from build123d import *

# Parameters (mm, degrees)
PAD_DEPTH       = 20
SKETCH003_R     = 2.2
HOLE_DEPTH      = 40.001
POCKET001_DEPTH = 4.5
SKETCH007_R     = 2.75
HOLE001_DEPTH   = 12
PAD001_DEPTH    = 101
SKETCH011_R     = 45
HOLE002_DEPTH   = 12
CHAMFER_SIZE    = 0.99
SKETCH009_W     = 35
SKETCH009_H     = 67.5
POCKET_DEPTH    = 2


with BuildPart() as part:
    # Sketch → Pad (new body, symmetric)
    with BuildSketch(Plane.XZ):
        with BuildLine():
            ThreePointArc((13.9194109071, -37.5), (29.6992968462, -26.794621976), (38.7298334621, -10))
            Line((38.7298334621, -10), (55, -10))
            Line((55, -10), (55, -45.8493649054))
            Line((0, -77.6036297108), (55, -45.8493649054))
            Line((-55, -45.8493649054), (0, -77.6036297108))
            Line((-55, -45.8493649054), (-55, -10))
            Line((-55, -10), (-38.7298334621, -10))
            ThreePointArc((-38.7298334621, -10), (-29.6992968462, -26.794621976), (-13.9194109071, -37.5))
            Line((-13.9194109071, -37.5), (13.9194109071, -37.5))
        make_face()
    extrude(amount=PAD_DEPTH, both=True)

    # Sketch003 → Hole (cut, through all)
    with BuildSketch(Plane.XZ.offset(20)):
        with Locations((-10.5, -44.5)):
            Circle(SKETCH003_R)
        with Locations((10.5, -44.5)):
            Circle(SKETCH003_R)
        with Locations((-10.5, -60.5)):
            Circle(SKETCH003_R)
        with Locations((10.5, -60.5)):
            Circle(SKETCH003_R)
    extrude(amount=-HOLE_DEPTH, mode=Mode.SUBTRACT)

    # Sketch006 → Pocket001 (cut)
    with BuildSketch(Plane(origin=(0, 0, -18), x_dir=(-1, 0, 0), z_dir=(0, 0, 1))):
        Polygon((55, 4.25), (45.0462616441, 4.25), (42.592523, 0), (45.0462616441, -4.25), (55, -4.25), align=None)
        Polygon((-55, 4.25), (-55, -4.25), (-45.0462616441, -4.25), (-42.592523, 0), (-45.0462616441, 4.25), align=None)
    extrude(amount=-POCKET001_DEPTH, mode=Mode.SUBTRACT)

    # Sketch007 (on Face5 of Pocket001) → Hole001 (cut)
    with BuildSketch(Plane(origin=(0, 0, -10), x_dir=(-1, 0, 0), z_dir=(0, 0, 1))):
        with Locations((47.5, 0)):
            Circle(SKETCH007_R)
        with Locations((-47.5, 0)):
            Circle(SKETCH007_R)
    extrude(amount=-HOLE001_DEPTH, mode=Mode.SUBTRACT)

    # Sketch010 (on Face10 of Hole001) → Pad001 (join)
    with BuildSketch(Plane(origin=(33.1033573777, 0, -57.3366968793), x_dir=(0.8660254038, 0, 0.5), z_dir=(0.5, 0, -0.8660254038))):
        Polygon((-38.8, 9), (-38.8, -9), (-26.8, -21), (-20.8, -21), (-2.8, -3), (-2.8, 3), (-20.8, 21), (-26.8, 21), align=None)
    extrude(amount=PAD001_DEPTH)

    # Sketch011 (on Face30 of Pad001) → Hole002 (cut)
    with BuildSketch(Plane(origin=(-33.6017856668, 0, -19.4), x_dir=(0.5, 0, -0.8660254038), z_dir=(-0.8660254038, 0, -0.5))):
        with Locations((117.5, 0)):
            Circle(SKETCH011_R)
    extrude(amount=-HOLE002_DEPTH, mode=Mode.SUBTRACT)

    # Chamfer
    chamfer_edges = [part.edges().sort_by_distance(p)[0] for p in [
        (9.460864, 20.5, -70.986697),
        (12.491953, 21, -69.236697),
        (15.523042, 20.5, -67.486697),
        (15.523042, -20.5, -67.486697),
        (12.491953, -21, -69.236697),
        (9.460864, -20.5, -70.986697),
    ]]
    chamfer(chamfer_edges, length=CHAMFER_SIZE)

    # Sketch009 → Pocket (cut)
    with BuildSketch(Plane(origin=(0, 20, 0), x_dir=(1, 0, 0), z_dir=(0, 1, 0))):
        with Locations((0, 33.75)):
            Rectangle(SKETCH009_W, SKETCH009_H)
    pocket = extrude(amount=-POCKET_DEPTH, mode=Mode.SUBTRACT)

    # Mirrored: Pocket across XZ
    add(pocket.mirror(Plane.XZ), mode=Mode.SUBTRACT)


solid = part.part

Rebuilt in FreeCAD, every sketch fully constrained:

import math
import FreeCAD as App
import Part
import Sketcher

V = App.Vector
Q = App.Units.Quantity


def edges_at(feature, points):
    """Names of the edges that pass closest to the given points."""
    edges = feature.Shape.Edges
    near = lambda p: min(range(len(edges)), key=lambda i: edges[i].distToShape(Part.Vertex(*p))[0])
    return sorted({f"Edge{near(p) + 1}" for p in points})

doc = App.newDocument("Part")
body = doc.addObject("PartDesign::Body", "Body")

# Sketch on XZ plane
sketch1 = body.newObject("Sketcher::SketchObject", "Sketch")
sketch1.AttachmentSupport = (doc.getObject("XZ_Plane"), [""])
sketch1.MapMode = "FlatFace"
sketch1.addGeometry([
    Part.ArcOfCircle(Part.Circle(V(0, 0, 0), V(0, 0, 1), 40), math.radians(-70), math.radians(-14)),  # 0
    Part.LineSegment(V(14, -38, 0), V(-14, -38, 0)),  # 1
    Part.ArcOfCircle(Part.Circle(V(0, 0, 0), V(0, 0, 1), 40), math.radians(-166), math.radians(-110)),  # 2
    Part.LineSegment(V(-39, -10, 0), V(-55, -10, 0)),  # 3
    Part.LineSegment(V(-55, -10, 0), V(-55, -46, 0)),  # 4
    Part.LineSegment(V(-55, -46, 0), V(0, -78, 0)),  # 5
    Part.LineSegment(V(0, -78, 0), V(55, -46, 0)),  # 6
    Part.LineSegment(V(55, -46, 0), V(55, -10, 0)),  # 7
    Part.LineSegment(V(55, -10, 0), V(39, -10, 0)),  # 8
], False)
sketch1.addConstraint([
    Sketcher.Constraint("Coincident", 0, 1, 1, 1),
    Sketcher.Constraint("Coincident", 1, 2, 2, 2),
    Sketcher.Constraint("Coincident", 2, 1, 3, 1),
    Sketcher.Constraint("Coincident", 3, 2, 4, 1),
    Sketcher.Constraint("Coincident", 4, 2, 5, 1),
    Sketcher.Constraint("Coincident", 5, 2, 6, 1),
    Sketcher.Constraint("Coincident", 6, 2, 7, 1),
    Sketcher.Constraint("Coincident", 7, 2, 8, 1),
    Sketcher.Constraint("Coincident", 8, 2, 0, 2),
    Sketcher.Constraint("Horizontal", 1),
    Sketcher.Constraint("Horizontal", 3),
    Sketcher.Constraint("Vertical", 4),
    Sketcher.Constraint("Vertical", 7),
    Sketcher.Constraint("Horizontal", 8),
    Sketcher.Constraint("Coincident", 0, 3, -1, 1),
    Sketcher.Constraint("Coincident", 2, 3, -1, 1),
    Sketcher.Constraint("Equal", 0, 2),
    Sketcher.Constraint("Symmetric", 4, 2, 6, 2, -2),
    Sketcher.Constraint("PointOnObject", 5, 2, -2),
    Sketcher.Constraint("Horizontal", 3, 2, 7, 2),
    Sketcher.Constraint("Radius", 0, 40.0),
    Sketcher.Constraint("Angle", 5, Q("-30 deg")),
    Sketcher.Constraint("DistanceY", 2, 1, -1, 1, 10.0),
    Sketcher.Constraint("DistanceX", 3, 2, -1, 1, 55.0),
    Sketcher.Constraint("DistanceY", 0, 1, -1, 1, 37.5),
    Sketcher.Constraint("DistanceY", 4, 2, 4, 1, 35.849365),
])
pad1 = body.newObject("PartDesign::Pad", "Pad")
pad1.Profile = sketch1
pad1.Length = 40
pad1.Midplane = True

# Sketch on XZ plane
sketch2 = body.newObject("Sketcher::SketchObject", "Sketch001")
sketch2.AttachmentSupport = (doc.getObject("XZ_Plane"), [""])
sketch2.MapMode = "FlatFace"
sketch2.AttachmentOffset = App.Placement(V(0, 0, 20), App.Rotation())
sketch2.addGeometry([
    Part.Circle(V(-10.5, -44.5, 0), V(0, 0, 1), 2.2),
    Part.Circle(V(10.5, -44.5, 0), V(0, 0, 1), 2.2),
    Part.Circle(V(-10.5, -60.5, 0), V(0, 0, 1), 2.2),
    Part.Circle(V(10.5, -60.5, 0), V(0, 0, 1), 2.2),
], False)
sketch2.addConstraint([
    Sketcher.Constraint("Equal", 0, 1),
    Sketcher.Constraint("Equal", 1, 2),
    Sketcher.Constraint("Equal", 2, 3),
    Sketcher.Constraint("Symmetric", 0, 3, 1, 3, -2),
    Sketcher.Constraint("Symmetric", 2, 3, 3, 3, -2),
    Sketcher.Constraint("Vertical", 0, 3, 2, 3),
    Sketcher.Constraint("Diameter", 0, 4.4),
    Sketcher.Constraint("DistanceX", 0, 3, 1, 3, 21.0),
    Sketcher.Constraint("DistanceY", 2, 3, 0, 3, 16.0),
    Sketcher.Constraint("DistanceY", 0, 3, -1, 1, 44.5),
])
pocket1 = body.newObject("PartDesign::Pocket", "Pocket")
pocket1.Profile = sketch2
pocket1.Type = "ThroughAll"

# Sketch on XY plane
sketch3 = body.newObject("Sketcher::SketchObject", "Sketch002")
sketch3.AttachmentSupport = (doc.getObject("XY_Plane"), [""])
sketch3.MapMode = "FlatFace"
sketch3.AttachmentOffset = App.Placement(V(0, 0, -18), App.Rotation())
sketch3.addGeometry([
    Part.LineSegment(V(-55, -4.2, 0), V(-45, -4.2, 0)),  # 0
    Part.LineSegment(V(-45, -4.2, 0), V(-42.6, 0, 0)),  # 1
    Part.LineSegment(V(-42.6, 0, 0), V(-45, 4.2, 0)),  # 2
    Part.LineSegment(V(-45, 4.2, 0), V(-55, 4.2, 0)),  # 3
    Part.LineSegment(V(-55, 4.2, 0), V(-55, -4.2, 0)),  # 4
    Part.LineSegment(V(55, -4.2, 0), V(55, 4.2, 0)),  # 5
    Part.LineSegment(V(55, 4.2, 0), V(45, 4.2, 0)),  # 6
    Part.LineSegment(V(45, 4.2, 0), V(42.6, 0, 0)),  # 7
    Part.LineSegment(V(42.6, 0, 0), V(45, -4.2, 0)),  # 8
    Part.LineSegment(V(45, -4.2, 0), V(55, -4.2, 0)),  # 9
], False)
sketch3.addConstraint([
    Sketcher.Constraint("Coincident", 0, 2, 1, 1),
    Sketcher.Constraint("Coincident", 1, 2, 2, 1),
    Sketcher.Constraint("Coincident", 2, 2, 3, 1),
    Sketcher.Constraint("Coincident", 3, 2, 4, 1),
    Sketcher.Constraint("Coincident", 4, 2, 0, 1),
    Sketcher.Constraint("Coincident", 5, 2, 6, 1),
    Sketcher.Constraint("Coincident", 6, 2, 7, 1),
    Sketcher.Constraint("Coincident", 7, 2, 8, 1),
    Sketcher.Constraint("Coincident", 8, 2, 9, 1),
    Sketcher.Constraint("Coincident", 9, 2, 5, 1),
    Sketcher.Constraint("Horizontal", 0),
    Sketcher.Constraint("Horizontal", 3),
    Sketcher.Constraint("Vertical", 4),
    Sketcher.Constraint("Vertical", 5),
    Sketcher.Constraint("Horizontal", 6),
    Sketcher.Constraint("Horizontal", 9),
    Sketcher.Constraint("Symmetric", 4, 2, 5, 2, -1, 1),
    Sketcher.Constraint("Symmetric", 1, 2, 7, 2, -1, 1),
    Sketcher.Constraint("Symmetric", 2, 2, 8, 2, -1, 1),
    Sketcher.Constraint("Symmetric", 2, 2, 6, 2, -2),
    Sketcher.Constraint("PointOnObject", 1, 2, -1),
    Sketcher.Constraint("Parallel", 1, 7),
    Sketcher.Constraint("Angle", 1, Q("60 deg")),
    Sketcher.Constraint("DistanceY", 4, 2, 4, 1, 8.5),
    Sketcher.Constraint("DistanceX", 3, 2, -1, 1, 55.0),
    Sketcher.Constraint("DistanceX", 0, 1, 0, 2, 9.953738),
])
pocket2 = body.newObject("PartDesign::Pocket", "Pocket001")
pocket2.Profile = sketch3
pocket2.Length = 4.5

# Sketch on XY plane
sketch4 = body.newObject("Sketcher::SketchObject", "Sketch003")
sketch4.AttachmentSupport = (doc.getObject("XY_Plane"), [""])
sketch4.MapMode = "FlatFace"
sketch4.AttachmentOffset = App.Placement(V(0, 0, -10), App.Rotation())
sketch4.addGeometry([
    Part.Circle(V(-47.5, 0, 0), V(0, 0, 1), 2.8),
    Part.Circle(V(47.5, 0, 0), V(0, 0, 1), 2.8),
], False)
sketch4.addConstraint([
    Sketcher.Constraint("Equal", 0, 1),
    Sketcher.Constraint("Symmetric", 0, 3, 1, 3, -1, 1),
    Sketcher.Constraint("PointOnObject", 0, 3, -1),
    Sketcher.Constraint("Diameter", 0, 5.5),
    Sketcher.Constraint("DistanceX", 0, 3, 1, 3, 95.0),
])
pocket3 = body.newObject("PartDesign::Pocket", "Pocket002")
pocket3.Profile = sketch4
pocket3.Length = 12

# Sketch on an angled plane
sketch5 = body.newObject("Sketcher::SketchObject", "Sketch004")
sketch5.Placement = App.Placement(V(33.103357, 0, -57.336697), App.Rotation(V(0.866025404, 0, 0.5), V(0, -1, 0), V(0.5, 0, -0.866025404), "ZXY"))
sketch5.addGeometry([
    Part.LineSegment(V(-39, 9, 0), V(-39, -9, 0)),  # 0
    Part.LineSegment(V(-39, -9, 0), V(-27, -21, 0)),  # 1
    Part.LineSegment(V(-27, -21, 0), V(-21, -21, 0)),  # 2
    Part.LineSegment(V(-21, -21, 0), V(-3, -3, 0)),  # 3
    Part.LineSegment(V(-3, -3, 0), V(-3, 3, 0)),  # 4
    Part.LineSegment(V(-3, 3, 0), V(-21, 21, 0)),  # 5
    Part.LineSegment(V(-21, 21, 0), V(-27, 21, 0)),  # 6
    Part.LineSegment(V(-27, 21, 0), V(-39, 9, 0)),  # 7
], False)
sketch5.addConstraint([
    Sketcher.Constraint("Coincident", 0, 2, 1, 1),
    Sketcher.Constraint("Coincident", 1, 2, 2, 1),
    Sketcher.Constraint("Coincident", 2, 2, 3, 1),
    Sketcher.Constraint("Coincident", 3, 2, 4, 1),
    Sketcher.Constraint("Coincident", 4, 2, 5, 1),
    Sketcher.Constraint("Coincident", 5, 2, 6, 1),
    Sketcher.Constraint("Coincident", 6, 2, 7, 1),
    Sketcher.Constraint("Coincident", 7, 2, 0, 1),
    Sketcher.Constraint("Vertical", 0),
    Sketcher.Constraint("Horizontal", 2),
    Sketcher.Constraint("Vertical", 4),
    Sketcher.Constraint("Horizontal", 6),
    Sketcher.Constraint("Symmetric", 2, 2, 5, 2, -1),
    Sketcher.Constraint("Perpendicular", 1, 3),
    Sketcher.Constraint("Perpendicular", 3, 5),
    Sketcher.Constraint("Perpendicular", 5, 7),
    Sketcher.Constraint("Vertical", 1, 2, 6, 2),
    Sketcher.Constraint("Equal", 6, 4),
    Sketcher.Constraint("Equal", 3, 5),
    Sketcher.Constraint("DistanceX", 2, 1, 2, 2, 6.0),
    Sketcher.Constraint("DistanceY", 0, 2, 0, 1, 18.0),
    Sketcher.Constraint("DistanceY", 1, 2, -1, 1, 21.0),
    Sketcher.Constraint("DistanceX", 0, 2, -1, 1, 38.8),
])
pad2 = body.newObject("PartDesign::Pad", "Pad001")
pad2.Profile = sketch5
pad2.Length = 101

# Sketch on an angled plane
sketch6 = body.newObject("Sketcher::SketchObject", "Sketch005")
sketch6.Placement = App.Placement(V(-33.601786, 0, -19.4), App.Rotation(V(0.5, 0, -0.866025404), V(0, -1, 0), V(-0.866025404, 0, -0.5), "ZXY"))
sketch6.addGeometry(Part.Circle(V(118, 0, 0), V(0, 0, 1), 45), False)
sketch6.addConstraint([
    Sketcher.Constraint("PointOnObject", 0, 3, -1),
    Sketcher.Constraint("Diameter", 0, 90.0),
    Sketcher.Constraint("DistanceX", -1, 1, 0, 3, 117.5),
])
pocket4 = body.newObject("PartDesign::Pocket", "Pocket003")
pocket4.Profile = sketch6
pocket4.Length = 12
doc.recompute()

chamfer = body.newObject("PartDesign::Chamfer", "Chamfer")
chamfer.Base = (pocket4, edges_at(pocket4, [
    (9.461, 20.5, -70.987),
    (12.492, 21, -69.237),
    (15.523, 20.5, -67.487),
    (15.523, -20.5, -67.487),
    (12.492, -21, -69.237),
    (9.461, -20.5, -70.987),
]))
chamfer.Size = 0.99

# Sketch on XZ plane
sketch7 = body.newObject("Sketcher::SketchObject", "Sketch006")
sketch7.AttachmentSupport = (doc.getObject("XZ_Plane"), [""])
sketch7.MapMode = "FlatFace"
sketch7.AttachmentOffset = App.Placement(V(0, 0, -20), App.Rotation())
sketch7.addGeometry([
    Part.LineSegment(V(-18, -68, 0), V(-18, 0, 0)),
    Part.LineSegment(V(-18, 0, 0), V(18, 0, 0)),
    Part.LineSegment(V(18, 0, 0), V(18, -68, 0)),
    Part.LineSegment(V(18, -68, 0), V(-18, -68, 0)),
], False)
sketch7.addConstraint([
    Sketcher.Constraint("Coincident", 0, 2, 1, 1),
    Sketcher.Constraint("Coincident", 1, 2, 2, 1),
    Sketcher.Constraint("Coincident", 2, 2, 3, 1),
    Sketcher.Constraint("Coincident", 3, 2, 0, 1),
    Sketcher.Constraint("Vertical", 0),
    Sketcher.Constraint("Horizontal", 1),
    Sketcher.Constraint("Vertical", 2),
    Sketcher.Constraint("Horizontal", 3),
    Sketcher.Constraint("Symmetric", 0, 2, 1, 2, -1, 1),
    Sketcher.Constraint("DistanceX", 1, 1, 1, 2, 35.0),
    Sketcher.Constraint("DistanceY", 0, 1, 0, 2, 67.5),
])
pocket5 = body.newObject("PartDesign::Pocket", "Pocket004")
pocket5.Profile = sketch7
pocket5.Length = 2
pocket5.Reversed = True
doc.recompute()

mirrored = body.newObject("PartDesign::Mirrored", "Mirrored")
mirrored.Originals = [pocket5]
mirrored.MirrorPlane = (doc.getObject("XZ_Plane"), [""])
body.Tip = mirrored

doc.recompute()
